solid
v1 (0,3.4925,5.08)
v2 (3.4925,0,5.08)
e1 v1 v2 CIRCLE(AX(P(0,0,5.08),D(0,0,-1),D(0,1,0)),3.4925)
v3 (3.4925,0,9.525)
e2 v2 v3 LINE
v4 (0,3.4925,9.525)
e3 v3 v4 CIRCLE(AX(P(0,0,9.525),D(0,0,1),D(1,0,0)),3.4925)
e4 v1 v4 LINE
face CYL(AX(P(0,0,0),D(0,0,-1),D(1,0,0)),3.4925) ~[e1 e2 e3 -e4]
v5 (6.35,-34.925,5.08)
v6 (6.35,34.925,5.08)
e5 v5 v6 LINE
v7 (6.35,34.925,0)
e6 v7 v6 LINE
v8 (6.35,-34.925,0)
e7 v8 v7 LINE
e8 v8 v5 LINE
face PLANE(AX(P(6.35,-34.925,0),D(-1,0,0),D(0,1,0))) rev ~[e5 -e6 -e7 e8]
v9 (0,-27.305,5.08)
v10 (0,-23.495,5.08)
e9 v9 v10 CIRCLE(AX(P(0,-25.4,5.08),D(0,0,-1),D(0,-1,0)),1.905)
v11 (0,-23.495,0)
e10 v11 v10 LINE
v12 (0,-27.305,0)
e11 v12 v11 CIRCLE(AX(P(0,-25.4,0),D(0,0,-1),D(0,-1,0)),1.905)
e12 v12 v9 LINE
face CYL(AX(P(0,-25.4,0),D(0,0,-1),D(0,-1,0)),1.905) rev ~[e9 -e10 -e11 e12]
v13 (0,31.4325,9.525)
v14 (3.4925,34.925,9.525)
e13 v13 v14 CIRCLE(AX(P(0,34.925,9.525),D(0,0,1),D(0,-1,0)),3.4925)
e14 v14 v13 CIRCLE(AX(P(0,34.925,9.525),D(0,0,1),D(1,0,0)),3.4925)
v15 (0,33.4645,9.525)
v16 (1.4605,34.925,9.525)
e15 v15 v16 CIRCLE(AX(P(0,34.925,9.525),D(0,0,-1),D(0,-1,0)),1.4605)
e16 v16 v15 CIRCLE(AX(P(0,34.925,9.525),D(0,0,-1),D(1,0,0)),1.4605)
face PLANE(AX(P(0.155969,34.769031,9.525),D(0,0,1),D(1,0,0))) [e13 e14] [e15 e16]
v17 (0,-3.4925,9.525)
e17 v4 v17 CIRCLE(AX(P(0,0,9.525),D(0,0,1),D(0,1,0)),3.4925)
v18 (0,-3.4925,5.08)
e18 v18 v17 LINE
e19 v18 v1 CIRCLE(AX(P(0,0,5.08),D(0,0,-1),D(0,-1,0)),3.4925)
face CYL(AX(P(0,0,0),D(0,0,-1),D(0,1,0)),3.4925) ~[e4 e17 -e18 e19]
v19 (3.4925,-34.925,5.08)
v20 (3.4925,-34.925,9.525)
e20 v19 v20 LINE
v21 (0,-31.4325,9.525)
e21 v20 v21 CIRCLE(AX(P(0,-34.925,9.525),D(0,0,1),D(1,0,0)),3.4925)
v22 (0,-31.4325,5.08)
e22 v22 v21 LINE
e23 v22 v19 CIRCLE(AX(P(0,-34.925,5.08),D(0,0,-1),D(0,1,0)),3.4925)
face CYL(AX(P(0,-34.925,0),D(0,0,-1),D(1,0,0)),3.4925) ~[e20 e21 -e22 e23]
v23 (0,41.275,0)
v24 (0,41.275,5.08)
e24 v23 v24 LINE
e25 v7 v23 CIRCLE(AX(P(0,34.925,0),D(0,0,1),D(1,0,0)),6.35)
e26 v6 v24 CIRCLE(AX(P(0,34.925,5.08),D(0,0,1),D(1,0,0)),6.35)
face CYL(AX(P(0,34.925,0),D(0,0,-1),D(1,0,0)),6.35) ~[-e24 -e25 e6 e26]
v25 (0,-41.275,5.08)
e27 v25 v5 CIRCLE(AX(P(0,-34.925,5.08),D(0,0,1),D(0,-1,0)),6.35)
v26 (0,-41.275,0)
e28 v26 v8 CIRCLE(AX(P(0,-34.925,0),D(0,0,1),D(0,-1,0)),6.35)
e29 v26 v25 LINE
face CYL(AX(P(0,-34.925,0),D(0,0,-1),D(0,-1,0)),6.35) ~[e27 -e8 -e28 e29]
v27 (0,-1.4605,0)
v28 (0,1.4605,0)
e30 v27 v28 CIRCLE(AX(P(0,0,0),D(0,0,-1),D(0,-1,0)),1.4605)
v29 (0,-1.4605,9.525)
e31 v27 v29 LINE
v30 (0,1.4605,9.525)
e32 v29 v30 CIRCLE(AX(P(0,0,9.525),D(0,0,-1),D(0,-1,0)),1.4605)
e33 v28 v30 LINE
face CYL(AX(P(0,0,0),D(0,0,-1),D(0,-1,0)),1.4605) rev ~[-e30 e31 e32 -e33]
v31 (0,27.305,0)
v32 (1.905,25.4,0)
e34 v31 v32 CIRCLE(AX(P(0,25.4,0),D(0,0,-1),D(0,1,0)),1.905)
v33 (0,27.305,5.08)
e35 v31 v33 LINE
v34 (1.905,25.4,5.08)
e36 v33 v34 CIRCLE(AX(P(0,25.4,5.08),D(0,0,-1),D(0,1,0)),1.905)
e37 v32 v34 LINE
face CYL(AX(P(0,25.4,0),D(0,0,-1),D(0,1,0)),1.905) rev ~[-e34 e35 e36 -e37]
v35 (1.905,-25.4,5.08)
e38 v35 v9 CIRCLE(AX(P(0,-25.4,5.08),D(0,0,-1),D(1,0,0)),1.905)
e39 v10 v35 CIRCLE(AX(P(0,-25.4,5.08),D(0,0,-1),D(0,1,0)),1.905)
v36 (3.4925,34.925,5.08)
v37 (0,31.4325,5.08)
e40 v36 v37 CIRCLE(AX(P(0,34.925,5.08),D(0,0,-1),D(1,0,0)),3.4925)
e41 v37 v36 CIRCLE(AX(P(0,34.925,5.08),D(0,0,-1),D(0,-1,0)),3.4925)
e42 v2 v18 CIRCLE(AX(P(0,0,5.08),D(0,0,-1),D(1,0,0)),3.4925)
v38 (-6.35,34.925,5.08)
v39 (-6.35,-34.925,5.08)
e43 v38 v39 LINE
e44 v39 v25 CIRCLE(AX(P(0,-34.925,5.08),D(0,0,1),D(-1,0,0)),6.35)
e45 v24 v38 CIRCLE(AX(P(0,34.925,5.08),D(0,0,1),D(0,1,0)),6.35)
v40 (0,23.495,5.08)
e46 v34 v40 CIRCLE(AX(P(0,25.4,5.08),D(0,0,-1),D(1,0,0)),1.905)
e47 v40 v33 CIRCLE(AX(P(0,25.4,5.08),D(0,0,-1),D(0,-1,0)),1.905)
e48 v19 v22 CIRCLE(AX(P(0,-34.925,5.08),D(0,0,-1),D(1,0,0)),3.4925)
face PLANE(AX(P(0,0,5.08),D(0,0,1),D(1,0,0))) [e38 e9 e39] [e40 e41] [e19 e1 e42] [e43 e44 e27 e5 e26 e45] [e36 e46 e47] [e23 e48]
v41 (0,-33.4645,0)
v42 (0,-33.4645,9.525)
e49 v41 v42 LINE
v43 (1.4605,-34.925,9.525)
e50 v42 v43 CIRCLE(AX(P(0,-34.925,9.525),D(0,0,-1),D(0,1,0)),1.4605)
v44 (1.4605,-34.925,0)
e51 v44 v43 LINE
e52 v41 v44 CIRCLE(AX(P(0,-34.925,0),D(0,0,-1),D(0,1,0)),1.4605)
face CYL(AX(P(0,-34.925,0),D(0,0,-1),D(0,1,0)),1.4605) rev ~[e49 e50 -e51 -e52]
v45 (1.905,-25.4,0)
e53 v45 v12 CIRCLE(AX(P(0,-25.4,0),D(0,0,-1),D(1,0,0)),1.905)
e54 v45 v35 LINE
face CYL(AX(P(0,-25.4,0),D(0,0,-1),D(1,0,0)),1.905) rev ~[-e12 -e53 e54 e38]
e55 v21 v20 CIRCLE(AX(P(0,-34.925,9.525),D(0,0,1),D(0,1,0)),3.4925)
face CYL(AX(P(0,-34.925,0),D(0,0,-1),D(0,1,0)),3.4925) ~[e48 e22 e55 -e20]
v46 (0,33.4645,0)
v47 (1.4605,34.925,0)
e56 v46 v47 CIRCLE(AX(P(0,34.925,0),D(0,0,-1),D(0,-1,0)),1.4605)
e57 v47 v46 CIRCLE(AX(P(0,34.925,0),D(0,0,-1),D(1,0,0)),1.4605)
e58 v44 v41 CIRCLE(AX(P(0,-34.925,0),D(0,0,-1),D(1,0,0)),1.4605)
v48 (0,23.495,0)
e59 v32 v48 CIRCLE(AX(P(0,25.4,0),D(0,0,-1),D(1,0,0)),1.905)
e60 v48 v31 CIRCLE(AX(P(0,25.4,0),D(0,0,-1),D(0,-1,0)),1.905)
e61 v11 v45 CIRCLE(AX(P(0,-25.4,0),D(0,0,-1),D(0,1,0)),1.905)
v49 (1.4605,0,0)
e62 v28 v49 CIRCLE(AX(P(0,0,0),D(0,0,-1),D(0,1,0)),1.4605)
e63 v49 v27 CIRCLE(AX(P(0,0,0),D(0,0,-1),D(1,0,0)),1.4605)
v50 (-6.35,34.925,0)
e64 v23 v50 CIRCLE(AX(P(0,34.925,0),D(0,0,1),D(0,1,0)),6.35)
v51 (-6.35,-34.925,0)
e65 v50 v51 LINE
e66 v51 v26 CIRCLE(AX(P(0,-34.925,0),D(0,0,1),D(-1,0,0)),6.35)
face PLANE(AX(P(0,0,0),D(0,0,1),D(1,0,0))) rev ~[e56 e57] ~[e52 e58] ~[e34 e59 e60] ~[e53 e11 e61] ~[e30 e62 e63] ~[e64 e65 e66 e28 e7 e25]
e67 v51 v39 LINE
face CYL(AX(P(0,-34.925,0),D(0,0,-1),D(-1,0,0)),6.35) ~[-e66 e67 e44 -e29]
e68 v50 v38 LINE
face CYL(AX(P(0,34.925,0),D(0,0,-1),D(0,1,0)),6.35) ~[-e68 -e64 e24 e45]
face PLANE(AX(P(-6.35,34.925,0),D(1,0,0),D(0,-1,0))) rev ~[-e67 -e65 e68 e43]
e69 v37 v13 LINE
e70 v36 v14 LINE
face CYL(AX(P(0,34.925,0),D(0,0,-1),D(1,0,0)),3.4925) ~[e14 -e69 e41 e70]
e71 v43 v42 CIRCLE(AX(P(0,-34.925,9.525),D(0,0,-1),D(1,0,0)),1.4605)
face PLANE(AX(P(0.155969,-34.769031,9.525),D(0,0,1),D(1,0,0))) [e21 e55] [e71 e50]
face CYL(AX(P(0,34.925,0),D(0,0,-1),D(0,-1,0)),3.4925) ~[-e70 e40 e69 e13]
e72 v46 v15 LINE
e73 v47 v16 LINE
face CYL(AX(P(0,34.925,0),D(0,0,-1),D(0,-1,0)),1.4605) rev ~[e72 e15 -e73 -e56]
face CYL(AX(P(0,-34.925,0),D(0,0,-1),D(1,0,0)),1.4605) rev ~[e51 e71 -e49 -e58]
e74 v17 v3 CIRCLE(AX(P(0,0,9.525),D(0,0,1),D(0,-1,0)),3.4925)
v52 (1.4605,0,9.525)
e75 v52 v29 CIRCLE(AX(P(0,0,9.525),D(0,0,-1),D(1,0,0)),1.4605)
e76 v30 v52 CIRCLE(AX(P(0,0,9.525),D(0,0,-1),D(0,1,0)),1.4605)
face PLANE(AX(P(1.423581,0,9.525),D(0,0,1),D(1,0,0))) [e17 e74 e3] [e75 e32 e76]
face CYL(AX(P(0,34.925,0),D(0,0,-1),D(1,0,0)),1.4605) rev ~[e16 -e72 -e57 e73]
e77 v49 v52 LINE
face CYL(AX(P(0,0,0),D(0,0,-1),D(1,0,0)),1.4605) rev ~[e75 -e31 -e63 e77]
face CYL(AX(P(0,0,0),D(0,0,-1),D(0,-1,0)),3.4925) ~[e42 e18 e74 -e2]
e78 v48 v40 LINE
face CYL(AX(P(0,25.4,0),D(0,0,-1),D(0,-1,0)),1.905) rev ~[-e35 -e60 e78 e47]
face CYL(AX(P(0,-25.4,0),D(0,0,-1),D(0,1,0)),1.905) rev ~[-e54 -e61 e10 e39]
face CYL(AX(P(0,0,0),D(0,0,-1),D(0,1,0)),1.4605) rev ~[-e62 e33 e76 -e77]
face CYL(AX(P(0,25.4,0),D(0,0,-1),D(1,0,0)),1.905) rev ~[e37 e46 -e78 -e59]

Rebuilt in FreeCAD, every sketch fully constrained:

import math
import FreeCAD as App
import Part
import Sketcher

V = App.Vector
Q = App.Units.Quantity

doc = App.newDocument("Part")
body = doc.addObject("PartDesign::Body", "Body")

# Sketch on XY plane
sketch1 = body.newObject("Sketcher::SketchObject", "Sketch")
sketch1.AttachmentSupport = (doc.getObject("XY_Plane"), [""])
sketch1.MapMode = "FlatFace"
sketch1.addGeometry([
    Part.ArcOfCircle(Part.Circle(V(0, -34.9, 0), V(0, 0, 1), 6.3), math.radians(-90), math.radians(0)),  # 0
    Part.LineSegment(V(6.3, -34.9, 0), V(6.3, 34.9, 0)),  # 1
    Part.ArcOfCircle(Part.Circle(V(0, 34.9, 0), V(0, 0, 1), 6.3), math.radians(0), math.radians(90)),  # 2
    Part.ArcOfCircle(Part.Circle(V(0, 34.9, 0), V(0, 0, 1), 6.3), math.radians(90), math.radians(180)),  # 3
    Part.LineSegment(V(-6.3, 34.9, 0), V(-6.3, -34.9, 0)),  # 4
    Part.ArcOfCircle(Part.Circle(V(0, -34.9, 0), V(0, 0, 1), 6.3), math.radians(180), math.radians(270)),  # 5
    Part.ArcOfCircle(Part.Circle(V(0, -34.9, 0), V(0, 0, 1), 3.5), math.radians(0), math.radians(90)),  # 6
    Part.ArcOfCircle(Part.Circle(V(0, -34.9, 0), V(0, 0, 1), 3.5), math.radians(90), math.radians(360)),  # 7
    Part.ArcOfCircle(Part.Circle(V(0, -25.4, 0), V(0, 0, 1), 1.9), math.radians(-90), math.radians(0)),  # 8
    Part.ArcOfCircle(Part.Circle(V(0, -25.4, 0), V(0, 0, 1), 1.9), math.radians(90), math.radians(270)),  # 9
    Part.ArcOfCircle(Part.Circle(V(0, -25.4, 0), V(0, 0, 1), 1.9), math.radians(0), math.radians(90)),  # 10
    Part.ArcOfCircle(Part.Circle(V(0, 34.9, 0), V(0, 0, 1), 3.5), math.radians(0), math.radians(270)),  # 11
    Part.ArcOfCircle(Part.Circle(V(0, 34.9, 0), V(0, 0, 1), 3.5), math.radians(-90), math.radians(0)),  # 12
    Part.ArcOfCircle(Part.Circle(V(0, 0, 0), V(0, 0, 1), 3.5), math.radians(-90), math.radians(0)),  # 13
    Part.ArcOfCircle(Part.Circle(V(0, 0, 0), V(0, 0, 1), 3.5), math.radians(90), math.radians(270)),  # 14
    Part.ArcOfCircle(Part.Circle(V(0, 0, 0), V(0, 0, 1), 3.5), math.radians(0), math.radians(90)),  # 15
    Part.ArcOfCircle(Part.Circle(V(0, 25.4, 0), V(0, 0, 1), 1.9), math.radians(-90), math.radians(0)),  # 16
    Part.ArcOfCircle(Part.Circle(V(0, 25.4, 0), V(0, 0, 1), 1.9), math.radians(90), math.radians(270)),  # 17
    Part.ArcOfCircle(Part.Circle(V(0, 25.4, 0), V(0, 0, 1), 1.9), math.radians(0), math.radians(90)),  # 18
], False)
sketch1.addConstraint([
    Sketcher.Constraint("Tangent", 0, 2, 1, 1),
    Sketcher.Constraint("Tangent", 1, 2, 2, 1),
    Sketcher.Constraint("Tangent", 2, 2, 3, 1),
    Sketcher.Constraint("Tangent", 3, 2, 4, 1),
    Sketcher.Constraint("Tangent", 4, 2, 5, 1),
    Sketcher.Constraint("Tangent", 5, 2, 0, 1),
    Sketcher.Constraint("Tangent", 6, 1, 7, 2),
    Sketcher.Constraint("Coincident", 7, 1, 6, 2),
    Sketcher.Constraint("Tangent", 8, 1, 9, 2),
    Sketcher.Constraint("Tangent", 9, 1, 10, 2),
    Sketcher.Constraint("Tangent", 10, 1, 8, 2),
    Sketcher.Constraint("Tangent", 11, 1, 12, 2),
    Sketcher.Constraint("Coincident", 12, 1, 11, 2),
    Sketcher.Constraint("Tangent", 13, 1, 14, 2),
    Sketcher.Constraint("Tangent", 14, 1, 15, 2),
    Sketcher.Constraint("Tangent", 15, 1, 13, 2),
    Sketcher.Constraint("Tangent", 16, 1, 17, 2),
    Sketcher.Constraint("Tangent", 17, 1, 18, 2),
    Sketcher.Constraint("Tangent", 18, 1, 16, 2),
    Sketcher.Constraint("Vertical", 1),
    Sketcher.Constraint("Vertical", 4),
    Sketcher.Constraint("Coincident", 13, 3, -1, 1),
    Sketcher.Constraint("Coincident", 6, 3, 0, 3),
    Sketcher.Constraint("Coincident", 11, 3, 2, 3),
    Sketcher.Constraint("Equal", 0, 2),
    Sketcher.Constraint("Equal", 2, 3),
    Sketcher.Constraint("Equal", 7, 11),
    Sketcher.Constraint("Equal", 12, 13),
    Sketcher.Constraint("Equal", 10, 16),
    Sketcher.Constraint("Symmetric", 0, 3, 2, 3, -1, 1),
    Sketcher.Constraint("Symmetric", 8, 3, 16, 3, -1, 1),
    Sketcher.Constraint("Symmetric", 10, 1, 18, 1, -1),
    Sketcher.Constraint("PointOnObject", 2, 2, -2),
    Sketcher.Constraint("PointOnObject", 5, 2, -2),
    Sketcher.Constraint("PointOnObject", 7, 1, -2),
    Sketcher.Constraint("PointOnObject", 8, 1, -2),
    Sketcher.Constraint("PointOnObject", 9, 1, -2),
    Sketcher.Constraint("PointOnObject", 12, 1, -2),
    Sketcher.Constraint("PointOnObject", 13, 1, -2),
    Sketcher.Constraint("PointOnObject", 14, 1, -2),
    Sketcher.Constraint("PointOnObject", 15, 1, -1),
    Sketcher.Constraint("PointOnObject", 16, 1, -2),
    Sketcher.Constraint("PointOnObject", 17, 1, -2),
    Sketcher.Constraint("Horizontal", 4, 2, 6, 1),
    Sketcher.Constraint("Horizontal", 9, 3, 10, 1),
    Sketcher.Constraint("Horizontal", 3, 2, 11, 1),
    Sketcher.Constraint("Radius", 0, Q("0.25 in")),
    Sketcher.Constraint("DistanceY", 8, 3, -1, 1, Q("1 in")),
    Sketcher.Constraint("Radius", 8, Q("0.075 in")),
    Sketcher.Constraint("DistanceY", 1, 1, 1, 2, Q("2.75 in")),
    Sketcher.Constraint("Radius", 6, Q("0.1375 in")),
])
pad1 = body.newObject("PartDesign::Pad", "Pad")
pad1.Profile = sketch1
pad1.Length = Q("0.2 in")

# Sketch on XY plane
sketch2 = body.newObject("Sketcher::SketchObject", "Sketch001")
sketch2.AttachmentSupport = (doc.getObject("XY_Plane"), [""])
sketch2.MapMode = "FlatFace"
sketch2.addGeometry([
    Part.ArcOfCircle(Part.Circle(V(0, -34.9, 0), V(0, 0, 1), 3.5), math.radians(0), math.radians(90)),  # 0
    Part.ArcOfCircle(Part.Circle(V(0, -34.9, 0), V(0, 0, 1), 3.5), math.radians(90), math.radians(360)),  # 1
    Part.ArcOfCircle(Part.Circle(V(0, -34.9, 0), V(0, 0, 1), 1.5), math.radians(0), math.radians(90)),  # 2
    Part.ArcOfCircle(Part.Circle(V(0, -34.9, 0), V(0, 0, 1), 1.5), math.radians(90), math.radians(360)),  # 3
    Part.ArcOfCircle(Part.Circle(V(0, 0, 0), V(0, 0, 1), 3.5), math.radians(0), math.radians(90)),  # 4
    Part.ArcOfCircle(Part.Circle(V(0, 0, 0), V(0, 0, 1), 3.5), math.radians(90), math.radians(270)),  # 5
    Part.ArcOfCircle(Part.Circle(V(0, 0, 0), V(0, 0, 1), 3.5), math.radians(-90), math.radians(0)),  # 6
    Part.ArcOfCircle(Part.Circle(V(0, 0, 0), V(0, 0, 1), 1.5), math.radians(0), math.radians(90)),  # 7
    Part.ArcOfCircle(Part.Circle(V(0, 0, 0), V(0, 0, 1), 1.5), math.radians(-90), math.radians(0)),  # 8
    Part.ArcOfCircle(Part.Circle(V(0, 0, 0), V(0, 0, 1), 1.5), math.radians(90), math.radians(270)),  # 9
    Part.ArcOfCircle(Part.Circle(V(0, 34.9, 0), V(0, 0, 1), 3.5), math.radians(0), math.radians(270)),  # 10
    Part.ArcOfCircle(Part.Circle(V(0, 34.9, 0), V(0, 0, 1), 3.5), math.radians(-90), math.radians(0)),  # 11
    Part.ArcOfCircle(Part.Circle(V(0, 34.9, 0), V(0, 0, 1), 1.5), math.radians(0), math.radians(270)),  # 12
    Part.ArcOfCircle(Part.Circle(V(0, 34.9, 0), V(0, 0, 1), 1.5), math.radians(-90), math.radians(0)),  # 13
], False)
sketch2.addConstraint([
    Sketcher.Constraint("Tangent", 0, 1, 1, 2),
    Sketcher.Constraint("Coincident", 1, 1, 0, 2),
    Sketcher.Constraint("Tangent", 2, 1, 3, 2),
    Sketcher.Constraint("Coincident", 3, 1, 2, 2),
    Sketcher.Constraint("Tangent", 4, 2, 5, 1),
    Sketcher.Constraint("Tangent", 5, 2, 6, 1),
    Sketcher.Constraint("Tangent", 6, 2, 4, 1),
    Sketcher.Constraint("Tangent", 7, 1, 8, 2),
    Sketcher.Constraint("Tangent", 8, 1, 9, 2),
    Sketcher.Constraint("Tangent", 9, 1, 7, 2),
    Sketcher.Constraint("Tangent", 10, 1, 11, 2),
    Sketcher.Constraint("Coincident", 11, 1, 10, 2),
    Sketcher.Constraint("Tangent", 12, 1, 13, 2),
    Sketcher.Constraint("Coincident", 13, 1, 12, 2),
    Sketcher.Constraint("Coincident", 4, 3, -1, 1),
    Sketcher.Constraint("Coincident", 7, 3, -1, 1),
    Sketcher.Constraint("Coincident", 2, 3, 0, 3),
    Sketcher.Constraint("Coincident", 12, 3, 10, 3),
    Sketcher.Constraint("Equal", 1, 4),
    Sketcher.Constraint("Equal", 3, 7),
    Sketcher.Constraint("Equal", 6, 10),
    Sketcher.Constraint("Equal", 9, 12),
    Sketcher.Constraint("Symmetric", 0, 3, 10, 3, -1, 1),
    Sketcher.Constraint("Symmetric", 0, 1, 10, 1, -1),
    Sketcher.Constraint("PointOnObject", 1, 1, -2),
    Sketcher.Constraint("PointOnObject", 3, 1, -2),
    Sketcher.Constraint("PointOnObject", 4, 2, -2),
    Sketcher.Constraint("PointOnObject", 5, 2, -2),
    Sketcher.Constraint("PointOnObject", 6, 2, -1),
    Sketcher.Constraint("PointOnObject", 7, 1, -1),
    Sketcher.Constraint("PointOnObject", 8, 1, -2),
    Sketcher.Constraint("PointOnObject", 9, 1, -2),
    Sketcher.Constraint("PointOnObject", 11, 1, -2),
    Sketcher.Constraint("PointOnObject", 13, 1, -2),
    Sketcher.Constraint("Horizontal", 3, 3, 0, 1),
    Sketcher.Constraint("Horizontal", 0, 1, 2, 1),
    Sketcher.Constraint("Horizontal", 10, 1, 12, 1),
    Sketcher.Constraint("Radius", 0, Q("0.1375 in")),
    Sketcher.Constraint("Radius", 2, Q("0.0575 in")),
    Sketcher.Constraint("DistanceY", 0, 3, -1, 1, Q("1.375 in")),
])
pad2 = body.newObject("PartDesign::Pad", "Pad001")
pad2.Profile = sketch2
pad2.Length = Q("0.375 in")

doc.recompute()
